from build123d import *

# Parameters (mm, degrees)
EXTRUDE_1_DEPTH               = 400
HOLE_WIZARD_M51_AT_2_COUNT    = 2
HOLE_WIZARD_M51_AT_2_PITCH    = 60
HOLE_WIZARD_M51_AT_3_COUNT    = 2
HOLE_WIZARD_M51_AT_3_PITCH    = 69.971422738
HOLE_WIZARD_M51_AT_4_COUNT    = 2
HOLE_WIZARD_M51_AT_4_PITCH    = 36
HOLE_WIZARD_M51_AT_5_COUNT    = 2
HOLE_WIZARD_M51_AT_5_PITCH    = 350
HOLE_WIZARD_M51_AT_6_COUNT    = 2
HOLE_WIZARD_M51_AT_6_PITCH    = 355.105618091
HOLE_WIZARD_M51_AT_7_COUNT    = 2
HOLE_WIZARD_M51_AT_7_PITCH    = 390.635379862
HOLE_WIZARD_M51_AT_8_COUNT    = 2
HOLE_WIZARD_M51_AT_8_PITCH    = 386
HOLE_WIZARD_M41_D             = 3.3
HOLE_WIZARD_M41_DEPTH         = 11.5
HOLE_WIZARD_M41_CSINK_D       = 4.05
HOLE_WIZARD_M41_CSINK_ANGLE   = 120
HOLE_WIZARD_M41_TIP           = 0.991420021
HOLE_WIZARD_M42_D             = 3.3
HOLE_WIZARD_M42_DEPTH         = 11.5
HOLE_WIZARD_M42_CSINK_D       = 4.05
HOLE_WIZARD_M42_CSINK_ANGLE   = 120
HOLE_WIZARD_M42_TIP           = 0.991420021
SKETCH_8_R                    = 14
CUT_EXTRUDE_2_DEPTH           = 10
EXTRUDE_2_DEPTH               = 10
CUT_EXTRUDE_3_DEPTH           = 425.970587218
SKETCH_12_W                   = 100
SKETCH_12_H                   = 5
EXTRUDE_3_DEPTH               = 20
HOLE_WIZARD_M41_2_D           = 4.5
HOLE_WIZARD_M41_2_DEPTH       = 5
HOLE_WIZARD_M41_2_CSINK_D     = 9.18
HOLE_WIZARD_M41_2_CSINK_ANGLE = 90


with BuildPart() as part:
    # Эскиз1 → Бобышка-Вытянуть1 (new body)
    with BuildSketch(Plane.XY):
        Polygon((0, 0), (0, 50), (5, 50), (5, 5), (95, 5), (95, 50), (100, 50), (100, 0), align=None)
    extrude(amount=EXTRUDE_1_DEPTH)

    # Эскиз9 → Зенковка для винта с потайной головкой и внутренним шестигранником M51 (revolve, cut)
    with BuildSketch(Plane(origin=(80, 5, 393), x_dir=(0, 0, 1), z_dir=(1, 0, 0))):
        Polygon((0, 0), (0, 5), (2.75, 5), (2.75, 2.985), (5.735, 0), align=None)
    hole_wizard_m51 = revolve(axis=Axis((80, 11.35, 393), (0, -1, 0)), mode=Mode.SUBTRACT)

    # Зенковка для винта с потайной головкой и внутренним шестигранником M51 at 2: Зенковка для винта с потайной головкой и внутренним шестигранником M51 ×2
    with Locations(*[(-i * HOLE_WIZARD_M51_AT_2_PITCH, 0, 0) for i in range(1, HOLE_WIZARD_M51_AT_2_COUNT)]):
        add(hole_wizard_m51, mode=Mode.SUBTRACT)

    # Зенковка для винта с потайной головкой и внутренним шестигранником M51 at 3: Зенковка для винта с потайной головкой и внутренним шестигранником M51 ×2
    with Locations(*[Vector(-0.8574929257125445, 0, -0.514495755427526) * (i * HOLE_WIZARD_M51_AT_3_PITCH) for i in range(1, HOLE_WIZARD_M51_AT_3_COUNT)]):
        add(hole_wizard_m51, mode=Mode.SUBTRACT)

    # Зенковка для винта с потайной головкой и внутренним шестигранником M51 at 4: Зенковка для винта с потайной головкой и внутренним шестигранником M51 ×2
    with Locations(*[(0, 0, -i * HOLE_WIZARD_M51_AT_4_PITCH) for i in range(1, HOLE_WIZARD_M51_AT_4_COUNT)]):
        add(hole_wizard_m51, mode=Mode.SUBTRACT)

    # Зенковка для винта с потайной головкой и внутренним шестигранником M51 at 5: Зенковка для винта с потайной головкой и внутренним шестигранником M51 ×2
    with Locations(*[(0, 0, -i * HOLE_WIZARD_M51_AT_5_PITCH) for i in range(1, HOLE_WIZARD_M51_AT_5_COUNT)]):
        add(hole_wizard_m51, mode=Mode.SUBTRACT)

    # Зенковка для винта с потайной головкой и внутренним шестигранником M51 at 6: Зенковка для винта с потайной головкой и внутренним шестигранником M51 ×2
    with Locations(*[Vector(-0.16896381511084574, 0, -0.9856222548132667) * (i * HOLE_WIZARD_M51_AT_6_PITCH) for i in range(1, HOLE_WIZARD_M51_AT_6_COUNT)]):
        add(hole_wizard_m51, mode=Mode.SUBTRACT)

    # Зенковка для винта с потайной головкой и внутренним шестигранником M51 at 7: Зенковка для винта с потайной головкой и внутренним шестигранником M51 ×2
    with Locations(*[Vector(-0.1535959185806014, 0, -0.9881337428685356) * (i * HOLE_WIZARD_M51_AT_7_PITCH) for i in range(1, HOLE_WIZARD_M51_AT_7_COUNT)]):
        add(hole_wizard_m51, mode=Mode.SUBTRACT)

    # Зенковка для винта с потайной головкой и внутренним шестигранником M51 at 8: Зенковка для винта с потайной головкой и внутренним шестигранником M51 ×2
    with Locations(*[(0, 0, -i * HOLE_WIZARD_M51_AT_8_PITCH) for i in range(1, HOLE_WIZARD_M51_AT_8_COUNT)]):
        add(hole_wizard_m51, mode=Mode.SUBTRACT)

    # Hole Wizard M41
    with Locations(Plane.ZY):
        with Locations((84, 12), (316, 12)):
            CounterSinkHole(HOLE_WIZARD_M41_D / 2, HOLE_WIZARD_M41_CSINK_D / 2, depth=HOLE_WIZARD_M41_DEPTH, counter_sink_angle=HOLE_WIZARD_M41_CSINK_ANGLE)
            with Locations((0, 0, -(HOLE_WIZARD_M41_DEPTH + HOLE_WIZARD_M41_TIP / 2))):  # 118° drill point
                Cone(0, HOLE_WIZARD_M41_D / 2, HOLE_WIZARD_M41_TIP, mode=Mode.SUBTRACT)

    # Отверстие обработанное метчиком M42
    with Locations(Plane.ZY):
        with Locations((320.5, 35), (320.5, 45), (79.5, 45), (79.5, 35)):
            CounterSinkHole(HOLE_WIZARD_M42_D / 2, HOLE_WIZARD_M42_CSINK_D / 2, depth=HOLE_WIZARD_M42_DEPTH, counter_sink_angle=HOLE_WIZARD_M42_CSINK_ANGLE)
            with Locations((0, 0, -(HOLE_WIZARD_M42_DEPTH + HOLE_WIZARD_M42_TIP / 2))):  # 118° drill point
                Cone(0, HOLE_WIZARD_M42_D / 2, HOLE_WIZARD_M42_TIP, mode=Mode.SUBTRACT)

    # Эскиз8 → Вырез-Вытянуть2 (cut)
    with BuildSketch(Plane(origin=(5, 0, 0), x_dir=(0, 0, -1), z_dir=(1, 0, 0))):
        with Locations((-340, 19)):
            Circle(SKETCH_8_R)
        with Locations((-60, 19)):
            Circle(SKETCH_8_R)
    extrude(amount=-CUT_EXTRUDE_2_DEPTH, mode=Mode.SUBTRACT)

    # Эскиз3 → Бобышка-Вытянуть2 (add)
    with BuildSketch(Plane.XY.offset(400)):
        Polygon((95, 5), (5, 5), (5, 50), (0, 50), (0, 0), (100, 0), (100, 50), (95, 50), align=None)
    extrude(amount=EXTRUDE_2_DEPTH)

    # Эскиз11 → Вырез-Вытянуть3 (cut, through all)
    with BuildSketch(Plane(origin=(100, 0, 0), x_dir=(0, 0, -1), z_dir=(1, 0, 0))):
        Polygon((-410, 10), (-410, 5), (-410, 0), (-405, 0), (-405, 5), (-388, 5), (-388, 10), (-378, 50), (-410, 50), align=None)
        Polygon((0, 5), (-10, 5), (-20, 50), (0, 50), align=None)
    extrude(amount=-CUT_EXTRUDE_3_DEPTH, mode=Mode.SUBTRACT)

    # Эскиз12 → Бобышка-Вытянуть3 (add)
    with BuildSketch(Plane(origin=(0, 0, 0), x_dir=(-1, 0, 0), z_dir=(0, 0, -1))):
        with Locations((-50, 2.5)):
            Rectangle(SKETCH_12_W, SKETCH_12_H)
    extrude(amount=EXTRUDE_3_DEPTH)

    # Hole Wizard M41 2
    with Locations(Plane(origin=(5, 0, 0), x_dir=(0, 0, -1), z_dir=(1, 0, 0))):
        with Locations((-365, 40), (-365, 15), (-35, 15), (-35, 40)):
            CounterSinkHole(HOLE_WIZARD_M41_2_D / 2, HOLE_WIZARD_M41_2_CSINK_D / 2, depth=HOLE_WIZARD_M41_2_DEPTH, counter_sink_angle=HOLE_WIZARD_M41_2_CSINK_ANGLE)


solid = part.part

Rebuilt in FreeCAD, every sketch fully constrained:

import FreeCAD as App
import Part
import Sketcher

V = App.Vector
Q = App.Units.Quantity


def add_polygon(sketch, points):
    """Adds a closed chain of lines whose ends are joined by coincident constraints."""
    first, n = sketch.GeometryCount, len(points)
    for a, b in zip(points, points[1:] + points[:1]):
        sketch.addGeometry(Part.LineSegment(App.Vector(*a, 0), App.Vector(*b, 0)), False)
    for i in range(n):
        sketch.addConstraint(Sketcher.Constraint("Coincident", first + i, 2, first + (i + 1) % n, 1))

doc = App.newDocument("Part")
body = doc.addObject("PartDesign::Body", "Body")

# Sketch on XY plane
sketch1 = doc.addObject("Sketcher::SketchObject", "Sketch")
body.addObject(sketch1)
sketch1.AttachmentSupport = (doc.XY_Plane, [""])
sketch1.MapMode = "FlatFace"
add_polygon(sketch1, [(0, 50), (0, 0), (100, 0), (100, 50), (95, 50), (95, 5), (5, 5), (5, 50)])  # lines 0-7
sketch1.addConstraint(Sketcher.Constraint("Vertical", 0))
sketch1.addConstraint(Sketcher.Constraint("Horizontal", 1))
sketch1.addConstraint(Sketcher.Constraint("Vertical", 2))
sketch1.addConstraint(Sketcher.Constraint("Horizontal", 3))
sketch1.addConstraint(Sketcher.Constraint("Vertical", 4))
sketch1.addConstraint(Sketcher.Constraint("Horizontal", 5))
sketch1.addConstraint(Sketcher.Constraint("Vertical", 6))
sketch1.addConstraint(Sketcher.Constraint("Horizontal", 7))
sketch1.addConstraint(Sketcher.Constraint("Coincident", 0, 2, -1, 1))
sketch1.addConstraint(Sketcher.Constraint("Horizontal", 3, 2, 6, 2))
sketch1.addConstraint(Sketcher.Constraint("Equal", 3, 7))
sketch1.addConstraint(Sketcher.Constraint("DistanceX", 1, 1, 1, 2, Q("100 mm")))
sketch1.addConstraint(Sketcher.Constraint("DistanceX", 3, 2, 3, 1, Q("5 mm")))
sketch1.addConstraint(Sketcher.Constraint("DistanceY", 0, 2, 0, 1, Q("50 mm")))
sketch1.addConstraint(Sketcher.Constraint("DistanceY", 4, 2, 4, 1, Q("45 mm")))
pad1 = doc.addObject("PartDesign::Pad", "Pad")
body.addObject(pad1)
pad1.Profile = sketch1
pad1.Length = 400

# Sketch on YZ plane
sketch2 = doc.addObject("Sketcher::SketchObject", "Sketch001")
body.addObject(sketch2)
sketch2.AttachmentSupport = (doc.YZ_Plane, [""])
sketch2.MapMode = "FlatFace"
sketch2.AttachmentOffset = App.Placement(V(0, 0, 80), App.Rotation())
add_polygon(sketch2, [(0, 393), (5, 393), (5, 398.7), (2, 395.8), (0, 395.8)])  # lines 0-4
sketch2.addGeometry(Part.LineSegment(V(5, 393, 0), V(0, 393, 0)), True)  # axis
sketch2.addConstraint(Sketcher.Constraint("Horizontal", 0))
sketch2.addConstraint(Sketcher.Constraint("Vertical", 1))
sketch2.addConstraint(Sketcher.Constraint("Horizontal", 3))
sketch2.addConstraint(Sketcher.Constraint("Vertical", 4))
sketch2.addConstraint(Sketcher.Constraint("Horizontal", 5))
sketch2.addConstraint(Sketcher.Constraint("Coincident", 5, 1, 0, 2))
sketch2.addConstraint(Sketcher.Constraint("PointOnObject", 3, 2, -2))
sketch2.addConstraint(Sketcher.Constraint("PointOnObject", 5, 2, -2))
sketch2.addConstraint(Sketcher.Constraint("DistanceX", 0, 1, 0, 2, Q("5 mm")))
sketch2.addConstraint(Sketcher.Constraint("Angle", 2, Q("-135 deg")))
sketch2.addConstraint(Sketcher.Constraint("DistanceY", -1, 1, 0, 2, Q("393 mm")))
sketch2.addConstraint(Sketcher.Constraint("DistanceY", 4, 2, 4, 1, Q("2.75 mm")))
sketch2.addConstraint(Sketcher.Constraint("DistanceX", 3, 2, 3, 1, Q("2.015 mm")))
groove = doc.addObject("PartDesign::Groove", "Groove")
body.addObject(groove)
groove.Profile = sketch2
groove.ReferenceAxis = (sketch2, ["Axis0"])
groove.Angle = 360
doc.recompute()

linearpattern = doc.addObject("PartDesign::LinearPattern", "LinearPattern")
body.addObject(linearpattern)
linearpattern.Originals = [groove]
linearpattern.Direction = (doc.X_Axis, [""])
linearpattern.Mode = "offset"
linearpattern.Offset = 60
linearpattern.Occurrences = 2
linearpattern.Reversed = True
body.Tip = linearpattern
doc.recompute()

datumline = doc.addObject("PartDesign::Line", "DatumLine")
body.addObject(datumline)
datumline.Placement = App.Placement(V(0, 0, 0), App.Rotation(V(0, 0, 1), V(-0.857492926, 0, -0.514495755)))
linearpattern2 = doc.addObject("PartDesign::LinearPattern", "LinearPattern001")
body.addObject(linearpattern2)
linearpattern2.Originals = [groove]
linearpattern2.Direction = (datumline, [""])
linearpattern2.Mode = "offset"
linearpattern2.Offset = 69.971423
linearpattern2.Occurrences = 2
body.Tip = linearpattern2
doc.recompute()

linearpattern3 = doc.addObject("PartDesign::LinearPattern", "LinearPattern002")
body.addObject(linearpattern3)
linearpattern3.Originals = [groove]
linearpattern3.Direction = (doc.Z_Axis, [""])
linearpattern3.Mode = "offset"
linearpattern3.Offset = 36
linearpattern3.Occurrences = 2
linearpattern3.Reversed = True
body.Tip = linearpattern3
doc.recompute()

linearpattern4 = doc.addObject("PartDesign::LinearPattern", "LinearPattern003")
body.addObject(linearpattern4)
linearpattern4.Originals = [groove]
linearpattern4.Direction = (doc.Z_Axis, [""])
linearpattern4.Mode = "offset"
linearpattern4.Offset = 350
linearpattern4.Occurrences = 2
linearpattern4.Reversed = True
body.Tip = linearpattern4
doc.recompute()

datumline2 = doc.addObject("PartDesign::Line", "DatumLine001")
body.addObject(datumline2)
datumline2.Placement = App.Placement(V(0, 0, 0), App.Rotation(V(0, 0, 1), V(-0.168963815, 0, -0.985622255)))
linearpattern5 = doc.addObject("PartDesign::LinearPattern", "LinearPattern004")
body.addObject(linearpattern5)
linearpattern5.Originals = [groove]
linearpattern5.Direction = (datumline2, [""])
linearpattern5.Mode = "offset"
linearpattern5.Offset = 355.105618
linearpattern5.Occurrences = 2
body.Tip = linearpattern5
doc.recompute()

datumline3 = doc.addObject("PartDesign::Line", "DatumLine002")
body.addObject(datumline3)
datumline3.Placement = App.Placement(V(0, 0, 0), App.Rotation(V(0, 0, 1), V(-0.153595919, 0, -0.988133743)))
linearpattern6 = doc.addObject("PartDesign::LinearPattern", "LinearPattern005")
body.addObject(linearpattern6)
linearpattern6.Originals = [groove]
linearpattern6.Direction = (datumline3, [""])
linearpattern6.Mode = "offset"
linearpattern6.Offset = 390.63538
linearpattern6.Occurrences = 2
body.Tip = linearpattern6
doc.recompute()

linearpattern7 = doc.addObject("PartDesign::LinearPattern", "LinearPattern006")
body.addObject(linearpattern7)
linearpattern7.Originals = [groove]
linearpattern7.Direction = (doc.Z_Axis, [""])
linearpattern7.Mode = "offset"
linearpattern7.Offset = 386
linearpattern7.Occurrences = 2
linearpattern7.Reversed = True
body.Tip = linearpattern7

# Sketch on YZ plane
sketch3 = doc.addObject("Sketcher::SketchObject", "Sketch002")
body.addObject(sketch3)
sketch3.AttachmentSupport = (doc.YZ_Plane, [""])
sketch3.MapMode = "FlatFace"
sketch3.addGeometry(Part.Circle(V(12, 84, 0), V(0, 0, 1), 1.6), False)
sketch3.addGeometry(Part.Circle(V(12, 316, 0), V(0, 0, 1), 1.6), False)
sketch3.addConstraint(Sketcher.Constraint("Equal", 0, 1))
sketch3.addConstraint(Sketcher.Constraint("Vertical", 0, 3, 1, 3))
sketch3.addConstraint(Sketcher.Constraint("Diameter", 0, Q("3.3 mm")))
sketch3.addConstraint(Sketcher.Constraint("DistanceX", -1, 1, 0, 3, Q("12 mm")))
sketch3.addConstraint(Sketcher.Constraint("DistanceY", -1, 1, 0, 3, Q("84 mm")))
sketch3.addConstraint(Sketcher.Constraint("DistanceY", -1, 1, 1, 3, Q("316 mm")))
doc.recompute()
hole = doc.addObject("PartDesign::Hole", "Hole")
body.addObject(hole)
hole.Profile = sketch3
hole.ThreadType = "None"
hole.Diameter = 3.3
hole.DepthType = "Dimension"
hole.Depth = 11.5
hole.DrillPoint = "Angled"
hole.DrillPointAngle = 118
hole.HoleCutType = "Countersink"
hole.HoleCutDiameter = 4.05
hole.HoleCutCountersinkAngle = 120
hole.Reversed = True

# Sketch on YZ plane
sketch4 = doc.addObject("Sketcher::SketchObject", "Sketch003")
body.addObject(sketch4)
sketch4.AttachmentSupport = (doc.YZ_Plane, [""])
sketch4.MapMode = "FlatFace"
sketch4.addGeometry(Part.Circle(V(35, 320.5, 0), V(0, 0, 1), 1.6), False)
sketch4.addGeometry(Part.Circle(V(45, 320.5, 0), V(0, 0, 1), 1.6), False)
sketch4.addGeometry(Part.Circle(V(45, 79.5, 0), V(0, 0, 1), 1.6), False)
sketch4.addGeometry(Part.Circle(V(35, 79.5, 0), V(0, 0, 1), 1.6), False)
sketch4.addConstraint(Sketcher.Constraint("Equal", 0, 1))
sketch4.addConstraint(Sketcher.Constraint("Equal", 1, 2))
sketch4.addConstraint(Sketcher.Constraint("Equal", 2, 3))
sketch4.addConstraint(Sketcher.Constraint("Horizontal", 0, 3, 1, 3))
sketch4.addConstraint(Sketcher.Constraint("Horizontal", 2, 3, 3, 3))
sketch4.addConstraint(Sketcher.Constraint("Vertical", 1, 3, 2, 3))
sketch4.addConstraint(Sketcher.Constraint("Vertical", 0, 3, 3, 3))
sketch4.addConstraint(Sketcher.Constraint("Diameter", 0, Q("3.3 mm")))
sketch4.addConstraint(Sketcher.Constraint("DistanceX", -1, 1, 0, 3, Q("35 mm")))
sketch4.addConstraint(Sketcher.Constraint("DistanceX", -1, 1, 1, 3, Q("45 mm")))
sketch4.addConstraint(Sketcher.Constraint("DistanceY", 2, 3, 1, 3, Q("241 mm")))
sketch4.addConstraint(Sketcher.Constraint("DistanceY", -1, 1, 0, 3, Q("320.5 mm")))
doc.recompute()
hole2 = doc.addObject("PartDesign::Hole", "Hole001")
body.addObject(hole2)
hole2.Profile = sketch4
hole2.ThreadType = "None"
hole2.Diameter = 3.3
hole2.DepthType = "Dimension"
hole2.Depth = 11.5
hole2.DrillPoint = "Angled"
hole2.DrillPointAngle = 118
hole2.HoleCutType = "Countersink"
hole2.HoleCutDiameter = 4.05
hole2.HoleCutCountersinkAngle = 120
hole2.Reversed = True

# Sketch on YZ plane
sketch5 = doc.addObject("Sketcher::SketchObject", "Sketch004")
body.addObject(sketch5)
sketch5.AttachmentSupport = (doc.YZ_Plane, [""])
sketch5.MapMode = "FlatFace"
sketch5.AttachmentOffset = App.Placement(V(0, 0, 5), App.Rotation())
sketch5.addGeometry(Part.Circle(V(19, 340, 0), V(0, 0, 1), 14), False)
sketch5.addGeometry(Part.Circle(V(19, 60, 0), V(0, 0, 1), 14), False)
sketch5.addConstraint(Sketcher.Constraint("Equal", 0, 1))
sketch5.addConstraint(Sketcher.Constraint("Vertical", 0, 3, 1, 3))
sketch5.addConstraint(Sketcher.Constraint("Diameter", 0, Q("28 mm")))
sketch5.addConstraint(Sketcher.Constraint("DistanceX", -1, 1, 0, 3, Q("19 mm")))
sketch5.addConstraint(Sketcher.Constraint("DistanceY", -1, 1, 0, 3, Q("340 mm")))
sketch5.addConstraint(Sketcher.Constraint("DistanceY", -1, 1, 1, 3, Q("60 mm")))
pocket1 = doc.addObject("PartDesign::Pocket", "Pocket")
body.addObject(pocket1)
pocket1.Profile = sketch5
pocket1.Length = 10

# Sketch on XY plane
sketch6 = doc.addObject("Sketcher::SketchObject", "Sketch005")
body.addObject(sketch6)
sketch6.AttachmentSupport = (doc.XY_Plane, [""])
sketch6.MapMode = "FlatFace"
sketch6.AttachmentOffset = App.Placement(V(0, 0, 400), App.Rotation())
add_polygon(sketch6, [(95, 5), (5, 5), (5, 50), (0, 50), (0, 0), (100, 0), (100, 50), (95, 50)])  # lines 0-7
sketch6.addConstraint(Sketcher.Constraint("Horizontal", 0))
sketch6.addConstraint(Sketcher.Constraint("Vertical", 1))
sketch6.addConstraint(Sketcher.Constraint("Horizontal", 2))
sketch6.addConstraint(Sketcher.Constraint("Vertical", 3))
sketch6.addConstraint(Sketcher.Constraint("Horizontal", 4))
sketch6.addConstraint(Sketcher.Constraint("Vertical", 5))
sketch6.addConstraint(Sketcher.Constraint("Horizontal", 6))
sketch6.addConstraint(Sketcher.Constraint("Vertical", 7))
sketch6.addConstraint(Sketcher.Constraint("Coincident", 3, 2, -1, 1))
sketch6.addConstraint(Sketcher.Constraint("Horizontal", 2, 2, 5, 2))
sketch6.addConstraint(Sketcher.Constraint("Equal", 2, 6))
sketch6.addConstraint(Sketcher.Constraint("DistanceX", 0, 2, 0, 1, Q("90 mm")))
sketch6.addConstraint(Sketcher.Constraint("DistanceX", 2, 2, 2, 1, Q("5 mm")))
sketch6.addConstraint(Sketcher.Constraint("DistanceY", 1, 1, 1, 2, Q("45 mm")))
sketch6.addConstraint(Sketcher.Constraint("DistanceY", 3, 2, 3, 1, Q("50 mm")))
pad2 = doc.addObject("PartDesign::Pad", "Pad001")
body.addObject(pad2)
pad2.Profile = sketch6
pad2.Length = 10

# Sketch on YZ plane
sketch7 = doc.addObject("Sketcher::SketchObject", "Sketch006")
body.addObject(sketch7)
sketch7.AttachmentSupport = (doc.YZ_Plane, [""])
sketch7.MapMode = "FlatFace"
sketch7.AttachmentOffset = App.Placement(V(0, 0, 100), App.Rotation())
add_polygon(sketch7, [(0, 410), (0, 405), (5, 405), (5, 388), (10, 388), (50, 378), (50, 410)])  # lines 0-6
add_polygon(sketch7, [(5, 10), (5, 0), (50, 0), (50, 20)])  # lines 7-10
sketch7.addConstraint(Sketcher.Constraint("Vertical", 0))
sketch7.addConstraint(Sketcher.Constraint("Horizontal", 1))
sketch7.addConstraint(Sketcher.Constraint("Vertical", 2))
sketch7.addConstraint(Sketcher.Constraint("Horizontal", 3))
sketch7.addConstraint(Sketcher.Constraint("Vertical", 5))
sketch7.addConstraint(Sketcher.Constraint("Horizontal", 6))
sketch7.addConstraint(Sketcher.Constraint("Vertical", 7))
sketch7.addConstraint(Sketcher.Constraint("Horizontal", 8))
sketch7.addConstraint(Sketcher.Constraint("Vertical", 9))
sketch7.addConstraint(Sketcher.Constraint("PointOnObject", 0, 2, -2))
sketch7.addConstraint(Sketcher.Constraint("PointOnObject", 7, 2, -1))
sketch7.addConstraint(Sketcher.Constraint("Vertical", 2, 2, 7, 2))
sketch7.addConstraint(Sketcher.Constraint("Vertical", 5, 2, 8, 2))
sketch7.addConstraint(Sketcher.Constraint("Equal", 1, 3))
sketch7.addConstraint(Sketcher.Constraint("Equal", 3, 0))
sketch7.addConstraint(Sketcher.Constraint("DistanceX", 1, 1, 1, 2, Q("5 mm")))
sketch7.addConstraint(Sketcher.Constraint("DistanceX", 6, 2, 6, 1, Q("50 mm")))
sketch7.addConstraint(Sketcher.Constraint("DistanceY", 2, 2, 2, 1, Q("17 mm")))
sketch7.addConstraint(Sketcher.Constraint("DistanceY", 5, 1, 5, 2, Q("32 mm")))
sketch7.addConstraint(Sketcher.Constraint("DistanceY", 7, 2, 7, 1, Q("10 mm")))
sketch7.addConstraint(Sketcher.Constraint("DistanceY", 9, 1, 9, 2, Q("20 mm")))
sketch7.addConstraint(Sketcher.Constraint("DistanceY", -1, 1, 0, 2, Q("405 mm")))
pocket2 = doc.addObject("PartDesign::Pocket", "Pocket001")
body.addObject(pocket2)
pocket2.Profile = sketch7
pocket2.Type = "ThroughAll"

# Sketch on XY plane
sketch8 = doc.addObject("Sketcher::SketchObject", "Sketch007")
body.addObject(sketch8)
sketch8.AttachmentSupport = (doc.XY_Plane, [""])
sketch8.MapMode = "FlatFace"
add_polygon(sketch8, [(100, 5), (100, 0), (0, 0), (0, 5)])  # lines 0-3
sketch8.addConstraint(Sketcher.Constraint("Vertical", 0))
sketch8.addConstraint(Sketcher.Constraint("Horizontal", 1))
sketch8.addConstraint(Sketcher.Constraint("Vertical", 2))
sketch8.addConstraint(Sketcher.Constraint("Horizontal", 3))
sketch8.addConstraint(Sketcher.Constraint("Coincident", 1, 2, -1, 1))
sketch8.addConstraint(Sketcher.Constraint("DistanceX", 1, 2, 1, 1, Q("100 mm")))
sketch8.addConstraint(Sketcher.Constraint("DistanceY", 0, 2, 0, 1, Q("5 mm")))
pad3 = doc.addObject("PartDesign::Pad", "Pad002")
body.addObject(pad3)
pad3.Profile = sketch8
pad3.Length = 20
pad3.Reversed = True

# Sketch on YZ plane
sketch9 = doc.addObject("Sketcher::SketchObject", "Sketch008")
body.addObject(sketch9)
sketch9.AttachmentSupport = (doc.YZ_Plane, [""])
sketch9.MapMode = "FlatFace"
sketch9.AttachmentOffset = App.Placement(V(0, 0, 5), App.Rotation())
sketch9.addGeometry(Part.Circle(V(40, 365, 0), V(0, 0, 1), 2.2), False)
sketch9.addGeometry(Part.Circle(V(15, 365, 0), V(0, 0, 1), 2.2), False)
sketch9.addGeometry(Part.Circle(V(15, 35, 0), V(0, 0, 1), 2.2), False)
sketch9.addGeometry(Part.Circle(V(40, 35, 0), V(0, 0, 1), 2.2), False)
sketch9.addConstraint(Sketcher.Constraint("Equal", 0, 1))
sketch9.addConstraint(Sketcher.Constraint("Equal", 1, 2))
sketch9.addConstraint(Sketcher.Constraint("Equal", 2, 3))
sketch9.addConstraint(Sketcher.Constraint("Horizontal", 0, 3, 1, 3))
sketch9.addConstraint(Sketcher.Constraint("Horizontal", 2, 3, 3, 3))
sketch9.addConstraint(Sketcher.Constraint("Vertical", 1, 3, 2, 3))
sketch9.addConstraint(Sketcher.Constraint("Vertical", 0, 3, 3, 3))
sketch9.addConstraint(Sketcher.Constraint("Diameter", 0, Q("4.5 mm")))
sketch9.addConstraint(Sketcher.Constraint("DistanceX", -1, 1, 0, 3, Q("40 mm")))
sketch9.addConstraint(Sketcher.Constraint("DistanceY", -1, 1, 0, 3, Q("365 mm")))
sketch9.addConstraint(Sketcher.Constraint("DistanceX", -1, 1, 1, 3, Q("15 mm")))
sketch9.addConstraint(Sketcher.Constraint("DistanceY", -1, 1, 2, 3, Q("35 mm")))
doc.recompute()
hole3 = doc.addObject("PartDesign::Hole", "Hole002")
body.addObject(hole3)
hole3.Profile = sketch9
hole3.ThreadType = "None"
hole3.Diameter = 4.5
hole3.DepthType = "Dimension"
hole3.Depth = 5
hole3.DrillPoint = "Flat"
hole3.HoleCutType = "Countersink"
hole3.HoleCutDiameter = 9.18
hole3.HoleCutCountersinkAngle = 90

doc.recompute()
